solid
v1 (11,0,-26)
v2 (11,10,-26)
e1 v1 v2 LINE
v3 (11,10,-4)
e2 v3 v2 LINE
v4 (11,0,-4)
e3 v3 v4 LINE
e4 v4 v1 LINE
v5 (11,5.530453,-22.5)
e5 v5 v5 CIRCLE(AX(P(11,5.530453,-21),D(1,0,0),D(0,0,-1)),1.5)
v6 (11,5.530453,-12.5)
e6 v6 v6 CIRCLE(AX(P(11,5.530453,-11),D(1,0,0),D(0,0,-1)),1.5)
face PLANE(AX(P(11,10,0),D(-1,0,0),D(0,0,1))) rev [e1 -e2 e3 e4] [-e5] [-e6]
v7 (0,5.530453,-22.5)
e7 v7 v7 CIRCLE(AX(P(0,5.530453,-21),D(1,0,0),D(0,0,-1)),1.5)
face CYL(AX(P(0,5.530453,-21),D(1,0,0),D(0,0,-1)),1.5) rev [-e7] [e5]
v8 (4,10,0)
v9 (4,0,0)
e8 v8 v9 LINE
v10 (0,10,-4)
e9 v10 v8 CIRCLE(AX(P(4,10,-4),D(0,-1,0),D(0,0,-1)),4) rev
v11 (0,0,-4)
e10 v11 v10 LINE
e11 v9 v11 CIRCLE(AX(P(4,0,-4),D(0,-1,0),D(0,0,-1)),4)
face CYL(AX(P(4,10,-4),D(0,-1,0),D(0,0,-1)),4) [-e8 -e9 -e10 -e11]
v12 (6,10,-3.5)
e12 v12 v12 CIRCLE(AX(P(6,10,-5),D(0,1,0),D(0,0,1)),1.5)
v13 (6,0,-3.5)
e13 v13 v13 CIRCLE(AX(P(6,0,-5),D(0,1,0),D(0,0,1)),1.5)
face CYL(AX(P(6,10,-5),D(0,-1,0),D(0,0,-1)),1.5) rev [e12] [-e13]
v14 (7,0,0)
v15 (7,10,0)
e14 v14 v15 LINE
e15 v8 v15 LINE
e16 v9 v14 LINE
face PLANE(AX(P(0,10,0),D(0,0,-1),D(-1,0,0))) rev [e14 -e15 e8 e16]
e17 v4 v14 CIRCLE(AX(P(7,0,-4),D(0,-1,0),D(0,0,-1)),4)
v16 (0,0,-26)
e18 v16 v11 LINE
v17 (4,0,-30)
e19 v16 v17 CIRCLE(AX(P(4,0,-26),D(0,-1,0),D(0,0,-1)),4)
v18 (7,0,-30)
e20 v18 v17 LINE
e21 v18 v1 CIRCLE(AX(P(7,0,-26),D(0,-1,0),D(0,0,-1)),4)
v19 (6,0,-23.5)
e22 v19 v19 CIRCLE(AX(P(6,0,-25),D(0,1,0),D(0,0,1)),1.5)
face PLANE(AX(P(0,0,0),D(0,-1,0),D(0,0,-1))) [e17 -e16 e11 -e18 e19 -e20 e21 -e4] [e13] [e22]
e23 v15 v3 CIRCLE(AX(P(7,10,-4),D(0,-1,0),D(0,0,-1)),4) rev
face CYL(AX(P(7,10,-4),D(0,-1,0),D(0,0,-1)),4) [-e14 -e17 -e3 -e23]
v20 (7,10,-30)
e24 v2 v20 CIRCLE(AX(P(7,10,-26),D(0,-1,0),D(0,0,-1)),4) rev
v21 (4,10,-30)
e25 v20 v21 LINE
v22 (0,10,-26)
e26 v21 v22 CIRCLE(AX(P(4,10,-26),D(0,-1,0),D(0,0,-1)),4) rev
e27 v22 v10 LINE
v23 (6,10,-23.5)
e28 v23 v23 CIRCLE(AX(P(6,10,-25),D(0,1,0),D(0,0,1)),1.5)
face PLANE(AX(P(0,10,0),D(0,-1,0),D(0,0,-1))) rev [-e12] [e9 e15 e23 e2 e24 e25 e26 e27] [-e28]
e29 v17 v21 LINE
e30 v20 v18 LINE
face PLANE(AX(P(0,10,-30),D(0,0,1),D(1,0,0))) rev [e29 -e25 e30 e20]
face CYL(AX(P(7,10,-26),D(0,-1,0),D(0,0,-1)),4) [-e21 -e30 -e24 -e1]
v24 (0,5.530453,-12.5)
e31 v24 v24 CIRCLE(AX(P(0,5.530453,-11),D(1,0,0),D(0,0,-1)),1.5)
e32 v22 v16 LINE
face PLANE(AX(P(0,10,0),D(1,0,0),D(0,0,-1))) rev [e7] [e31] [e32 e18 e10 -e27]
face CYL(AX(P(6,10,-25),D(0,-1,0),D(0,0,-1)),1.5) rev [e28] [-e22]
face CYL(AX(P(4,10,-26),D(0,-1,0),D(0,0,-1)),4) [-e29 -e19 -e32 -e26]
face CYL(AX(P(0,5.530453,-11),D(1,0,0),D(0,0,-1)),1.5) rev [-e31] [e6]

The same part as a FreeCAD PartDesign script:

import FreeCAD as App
import Part
import Sketcher

V = App.Vector
Q = App.Units.Quantity


def edges_at(feature, points):
    """Names of the edges that pass closest to the given points."""
    edges = feature.Shape.Edges
    near = lambda p: min(range(len(edges)), key=lambda i: edges[i].distToShape(Part.Vertex(*p))[0])
    return sorted({f"Edge{near(p) + 1}" for p in points})


def add_polygon(sketch, points):
    """Adds a closed chain of lines whose ends are joined by coincident constraints."""
    first, n = sketch.GeometryCount, len(points)
    for a, b in zip(points, points[1:] + points[:1]):
        sketch.addGeometry(Part.LineSegment(App.Vector(*a, 0), App.Vector(*b, 0)), False)
    for i in range(n):
        sketch.addConstraint(Sketcher.Constraint("Coincident", first + i, 2, first + (i + 1) % n, 1))

doc = App.newDocument("Part")
body = doc.addObject("PartDesign::Body", "Body")

# Sketch on XZ plane
sketch1 = body.newObject("Sketcher::SketchObject", "Sketch")
sketch1.AttachmentSupport = (doc.getObject("XZ_Plane"), [""])
sketch1.MapMode = "FlatFace"
add_polygon(sketch1, [(0, -30), (0, 0), (11, 0), (11, -30)])  # lines 0-3
sketch1.addGeometry(Part.Circle(V(6, -5, 0), V(0, 0, 1), 1.5), False)  # 4
sketch1.addGeometry(Part.Circle(V(6, -25, 0), V(0, 0, 1), 1.5), False)  # 5
sketch1.addConstraint([
    Sketcher.Constraint("Vertical", 0),
    Sketcher.Constraint("Horizontal", 1),
    Sketcher.Constraint("Vertical", 2),
    Sketcher.Constraint("Horizontal", 3),
    Sketcher.Constraint("Coincident", 0, 2, -1, 1),
    Sketcher.Constraint("Equal", 4, 5),
    Sketcher.Constraint("Vertical", 4, 3, 5, 3),
    Sketcher.Constraint("Diameter", 4, Q("3 mm")),
    Sketcher.Constraint("DistanceX", 1, 1, 1, 2, Q("11 mm")),
    Sketcher.Constraint("DistanceY", 0, 1, 0, 2, Q("30 mm")),
    Sketcher.Constraint("DistanceX", -1, 1, 4, 3, Q("6 mm")),
    Sketcher.Constraint("DistanceY", 4, 3, -1, 1, Q("5 mm")),
    Sketcher.Constraint("DistanceY", 5, 3, -1, 1, Q("25 mm")),
])
pad1 = body.newObject("PartDesign::Pad", "Pad")
pad1.Profile = sketch1
pad1.Length = 10
pad1.Reversed = True

# Sketch on YZ plane
sketch2 = body.newObject("Sketcher::SketchObject", "Sketch001")
sketch2.AttachmentSupport = (doc.getObject("YZ_Plane"), [""])
sketch2.MapMode = "FlatFace"
sketch2.AttachmentOffset = App.Placement(V(0, 0, 11), App.Rotation())
sketch2.addGeometry([
    Part.Circle(V(5.530453, -11, 0), V(0, 0, 1), 1.5),
    Part.Circle(V(5.530453, -21, 0), V(0, 0, 1), 1.5),
], False)
sketch2.addConstraint([
    Sketcher.Constraint("Equal", 0, 1),
    Sketcher.Constraint("Vertical", 0, 3, 1, 3),
    Sketcher.Constraint("Diameter", 0, Q("3 mm")),
    Sketcher.Constraint("DistanceY", 0, 3, -1, 1, Q("11 mm")),
    Sketcher.Constraint("DistanceY", 1, 3, -1, 1, Q("21 mm")),
    Sketcher.Constraint("DistanceX", -1, 1, 0, 3, Q("5.530453 mm")),
])
pocket1 = body.newObject("PartDesign::Pocket", "Pocket")
pocket1.Profile = sketch2
pocket1.Type = "ThroughAll"
doc.recompute()

fillet = body.newObject("PartDesign::Fillet", "Fillet")
fillet.Base = (pocket1, edges_at(pocket1, [
    (0, 5, -30),
    (11, 5, -30),
    (11, 5, 0),
    (0, 5, 0),
]))
fillet.Radius = 4

doc.recompute()
